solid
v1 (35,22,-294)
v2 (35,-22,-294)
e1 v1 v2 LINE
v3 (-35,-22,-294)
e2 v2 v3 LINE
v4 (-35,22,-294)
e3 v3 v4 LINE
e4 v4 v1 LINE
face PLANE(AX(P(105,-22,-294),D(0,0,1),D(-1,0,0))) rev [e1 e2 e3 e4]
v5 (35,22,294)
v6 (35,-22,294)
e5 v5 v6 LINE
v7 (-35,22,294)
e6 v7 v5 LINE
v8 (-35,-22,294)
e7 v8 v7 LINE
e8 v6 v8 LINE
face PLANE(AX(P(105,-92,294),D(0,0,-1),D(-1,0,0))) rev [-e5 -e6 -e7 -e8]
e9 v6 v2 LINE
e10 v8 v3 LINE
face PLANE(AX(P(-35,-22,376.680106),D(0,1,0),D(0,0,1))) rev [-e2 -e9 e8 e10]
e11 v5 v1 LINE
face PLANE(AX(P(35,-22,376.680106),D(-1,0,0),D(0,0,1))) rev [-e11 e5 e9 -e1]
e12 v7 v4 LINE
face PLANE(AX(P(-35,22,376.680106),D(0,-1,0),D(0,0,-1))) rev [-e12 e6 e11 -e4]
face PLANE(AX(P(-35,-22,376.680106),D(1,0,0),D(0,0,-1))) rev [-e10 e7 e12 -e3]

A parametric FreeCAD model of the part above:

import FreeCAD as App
import Part
import Sketcher

V = App.Vector

doc = App.newDocument("Part")
body = doc.addObject("PartDesign::Body", "Body")

# Sketch on XY plane
sketch1 = body.newObject("Sketcher::SketchObject", "Sketch")
sketch1.AttachmentSupport = (doc.getObject("XY_Plane"), [""])
sketch1.MapMode = "FlatFace"
sketch1.addGeometry(Part.LineSegment(V(-35, 22, 0), V(-35, -22, 0)), False)
sketch1.addGeometry(Part.LineSegment(V(-35, -22, 0), V(35, -22, 0)), False)
sketch1.addGeometry(Part.LineSegment(V(35, -22, 0), V(35, 22, 0)), False)
sketch1.addGeometry(Part.LineSegment(V(35, 22, 0), V(-35, 22, 0)), False)
sketch1.addConstraint(Sketcher.Constraint("Coincident", 0, 2, 1, 1))
sketch1.addConstraint(Sketcher.Constraint("Coincident", 1, 2, 2, 1))
sketch1.addConstraint(Sketcher.Constraint("Coincident", 2, 2, 3, 1))
sketch1.addConstraint(Sketcher.Constraint("Coincident", 3, 2, 0, 1))
sketch1.addConstraint(Sketcher.Constraint("Vertical", 0))
sketch1.addConstraint(Sketcher.Constraint("Horizontal", 1))
sketch1.addConstraint(Sketcher.Constraint("Vertical", 2))
sketch1.addConstraint(Sketcher.Constraint("Horizontal", 3))
sketch1.addConstraint(Sketcher.Constraint("Symmetric", 0, 2, 2, 2, -1, 1))
sketch1.addConstraint(Sketcher.Constraint("DistanceX", 1, 1, 1, 2, 70.0))
sketch1.addConstraint(Sketcher.Constraint("DistanceY", 0, 2, 0, 1, 44.0))
pad1 = body.newObject("PartDesign::Pad", "Pad")
pad1.Profile = sketch1
pad1.Type = "TwoLengths"
pad1.Length = 294
pad1.Length2 = 294

doc.recompute()
